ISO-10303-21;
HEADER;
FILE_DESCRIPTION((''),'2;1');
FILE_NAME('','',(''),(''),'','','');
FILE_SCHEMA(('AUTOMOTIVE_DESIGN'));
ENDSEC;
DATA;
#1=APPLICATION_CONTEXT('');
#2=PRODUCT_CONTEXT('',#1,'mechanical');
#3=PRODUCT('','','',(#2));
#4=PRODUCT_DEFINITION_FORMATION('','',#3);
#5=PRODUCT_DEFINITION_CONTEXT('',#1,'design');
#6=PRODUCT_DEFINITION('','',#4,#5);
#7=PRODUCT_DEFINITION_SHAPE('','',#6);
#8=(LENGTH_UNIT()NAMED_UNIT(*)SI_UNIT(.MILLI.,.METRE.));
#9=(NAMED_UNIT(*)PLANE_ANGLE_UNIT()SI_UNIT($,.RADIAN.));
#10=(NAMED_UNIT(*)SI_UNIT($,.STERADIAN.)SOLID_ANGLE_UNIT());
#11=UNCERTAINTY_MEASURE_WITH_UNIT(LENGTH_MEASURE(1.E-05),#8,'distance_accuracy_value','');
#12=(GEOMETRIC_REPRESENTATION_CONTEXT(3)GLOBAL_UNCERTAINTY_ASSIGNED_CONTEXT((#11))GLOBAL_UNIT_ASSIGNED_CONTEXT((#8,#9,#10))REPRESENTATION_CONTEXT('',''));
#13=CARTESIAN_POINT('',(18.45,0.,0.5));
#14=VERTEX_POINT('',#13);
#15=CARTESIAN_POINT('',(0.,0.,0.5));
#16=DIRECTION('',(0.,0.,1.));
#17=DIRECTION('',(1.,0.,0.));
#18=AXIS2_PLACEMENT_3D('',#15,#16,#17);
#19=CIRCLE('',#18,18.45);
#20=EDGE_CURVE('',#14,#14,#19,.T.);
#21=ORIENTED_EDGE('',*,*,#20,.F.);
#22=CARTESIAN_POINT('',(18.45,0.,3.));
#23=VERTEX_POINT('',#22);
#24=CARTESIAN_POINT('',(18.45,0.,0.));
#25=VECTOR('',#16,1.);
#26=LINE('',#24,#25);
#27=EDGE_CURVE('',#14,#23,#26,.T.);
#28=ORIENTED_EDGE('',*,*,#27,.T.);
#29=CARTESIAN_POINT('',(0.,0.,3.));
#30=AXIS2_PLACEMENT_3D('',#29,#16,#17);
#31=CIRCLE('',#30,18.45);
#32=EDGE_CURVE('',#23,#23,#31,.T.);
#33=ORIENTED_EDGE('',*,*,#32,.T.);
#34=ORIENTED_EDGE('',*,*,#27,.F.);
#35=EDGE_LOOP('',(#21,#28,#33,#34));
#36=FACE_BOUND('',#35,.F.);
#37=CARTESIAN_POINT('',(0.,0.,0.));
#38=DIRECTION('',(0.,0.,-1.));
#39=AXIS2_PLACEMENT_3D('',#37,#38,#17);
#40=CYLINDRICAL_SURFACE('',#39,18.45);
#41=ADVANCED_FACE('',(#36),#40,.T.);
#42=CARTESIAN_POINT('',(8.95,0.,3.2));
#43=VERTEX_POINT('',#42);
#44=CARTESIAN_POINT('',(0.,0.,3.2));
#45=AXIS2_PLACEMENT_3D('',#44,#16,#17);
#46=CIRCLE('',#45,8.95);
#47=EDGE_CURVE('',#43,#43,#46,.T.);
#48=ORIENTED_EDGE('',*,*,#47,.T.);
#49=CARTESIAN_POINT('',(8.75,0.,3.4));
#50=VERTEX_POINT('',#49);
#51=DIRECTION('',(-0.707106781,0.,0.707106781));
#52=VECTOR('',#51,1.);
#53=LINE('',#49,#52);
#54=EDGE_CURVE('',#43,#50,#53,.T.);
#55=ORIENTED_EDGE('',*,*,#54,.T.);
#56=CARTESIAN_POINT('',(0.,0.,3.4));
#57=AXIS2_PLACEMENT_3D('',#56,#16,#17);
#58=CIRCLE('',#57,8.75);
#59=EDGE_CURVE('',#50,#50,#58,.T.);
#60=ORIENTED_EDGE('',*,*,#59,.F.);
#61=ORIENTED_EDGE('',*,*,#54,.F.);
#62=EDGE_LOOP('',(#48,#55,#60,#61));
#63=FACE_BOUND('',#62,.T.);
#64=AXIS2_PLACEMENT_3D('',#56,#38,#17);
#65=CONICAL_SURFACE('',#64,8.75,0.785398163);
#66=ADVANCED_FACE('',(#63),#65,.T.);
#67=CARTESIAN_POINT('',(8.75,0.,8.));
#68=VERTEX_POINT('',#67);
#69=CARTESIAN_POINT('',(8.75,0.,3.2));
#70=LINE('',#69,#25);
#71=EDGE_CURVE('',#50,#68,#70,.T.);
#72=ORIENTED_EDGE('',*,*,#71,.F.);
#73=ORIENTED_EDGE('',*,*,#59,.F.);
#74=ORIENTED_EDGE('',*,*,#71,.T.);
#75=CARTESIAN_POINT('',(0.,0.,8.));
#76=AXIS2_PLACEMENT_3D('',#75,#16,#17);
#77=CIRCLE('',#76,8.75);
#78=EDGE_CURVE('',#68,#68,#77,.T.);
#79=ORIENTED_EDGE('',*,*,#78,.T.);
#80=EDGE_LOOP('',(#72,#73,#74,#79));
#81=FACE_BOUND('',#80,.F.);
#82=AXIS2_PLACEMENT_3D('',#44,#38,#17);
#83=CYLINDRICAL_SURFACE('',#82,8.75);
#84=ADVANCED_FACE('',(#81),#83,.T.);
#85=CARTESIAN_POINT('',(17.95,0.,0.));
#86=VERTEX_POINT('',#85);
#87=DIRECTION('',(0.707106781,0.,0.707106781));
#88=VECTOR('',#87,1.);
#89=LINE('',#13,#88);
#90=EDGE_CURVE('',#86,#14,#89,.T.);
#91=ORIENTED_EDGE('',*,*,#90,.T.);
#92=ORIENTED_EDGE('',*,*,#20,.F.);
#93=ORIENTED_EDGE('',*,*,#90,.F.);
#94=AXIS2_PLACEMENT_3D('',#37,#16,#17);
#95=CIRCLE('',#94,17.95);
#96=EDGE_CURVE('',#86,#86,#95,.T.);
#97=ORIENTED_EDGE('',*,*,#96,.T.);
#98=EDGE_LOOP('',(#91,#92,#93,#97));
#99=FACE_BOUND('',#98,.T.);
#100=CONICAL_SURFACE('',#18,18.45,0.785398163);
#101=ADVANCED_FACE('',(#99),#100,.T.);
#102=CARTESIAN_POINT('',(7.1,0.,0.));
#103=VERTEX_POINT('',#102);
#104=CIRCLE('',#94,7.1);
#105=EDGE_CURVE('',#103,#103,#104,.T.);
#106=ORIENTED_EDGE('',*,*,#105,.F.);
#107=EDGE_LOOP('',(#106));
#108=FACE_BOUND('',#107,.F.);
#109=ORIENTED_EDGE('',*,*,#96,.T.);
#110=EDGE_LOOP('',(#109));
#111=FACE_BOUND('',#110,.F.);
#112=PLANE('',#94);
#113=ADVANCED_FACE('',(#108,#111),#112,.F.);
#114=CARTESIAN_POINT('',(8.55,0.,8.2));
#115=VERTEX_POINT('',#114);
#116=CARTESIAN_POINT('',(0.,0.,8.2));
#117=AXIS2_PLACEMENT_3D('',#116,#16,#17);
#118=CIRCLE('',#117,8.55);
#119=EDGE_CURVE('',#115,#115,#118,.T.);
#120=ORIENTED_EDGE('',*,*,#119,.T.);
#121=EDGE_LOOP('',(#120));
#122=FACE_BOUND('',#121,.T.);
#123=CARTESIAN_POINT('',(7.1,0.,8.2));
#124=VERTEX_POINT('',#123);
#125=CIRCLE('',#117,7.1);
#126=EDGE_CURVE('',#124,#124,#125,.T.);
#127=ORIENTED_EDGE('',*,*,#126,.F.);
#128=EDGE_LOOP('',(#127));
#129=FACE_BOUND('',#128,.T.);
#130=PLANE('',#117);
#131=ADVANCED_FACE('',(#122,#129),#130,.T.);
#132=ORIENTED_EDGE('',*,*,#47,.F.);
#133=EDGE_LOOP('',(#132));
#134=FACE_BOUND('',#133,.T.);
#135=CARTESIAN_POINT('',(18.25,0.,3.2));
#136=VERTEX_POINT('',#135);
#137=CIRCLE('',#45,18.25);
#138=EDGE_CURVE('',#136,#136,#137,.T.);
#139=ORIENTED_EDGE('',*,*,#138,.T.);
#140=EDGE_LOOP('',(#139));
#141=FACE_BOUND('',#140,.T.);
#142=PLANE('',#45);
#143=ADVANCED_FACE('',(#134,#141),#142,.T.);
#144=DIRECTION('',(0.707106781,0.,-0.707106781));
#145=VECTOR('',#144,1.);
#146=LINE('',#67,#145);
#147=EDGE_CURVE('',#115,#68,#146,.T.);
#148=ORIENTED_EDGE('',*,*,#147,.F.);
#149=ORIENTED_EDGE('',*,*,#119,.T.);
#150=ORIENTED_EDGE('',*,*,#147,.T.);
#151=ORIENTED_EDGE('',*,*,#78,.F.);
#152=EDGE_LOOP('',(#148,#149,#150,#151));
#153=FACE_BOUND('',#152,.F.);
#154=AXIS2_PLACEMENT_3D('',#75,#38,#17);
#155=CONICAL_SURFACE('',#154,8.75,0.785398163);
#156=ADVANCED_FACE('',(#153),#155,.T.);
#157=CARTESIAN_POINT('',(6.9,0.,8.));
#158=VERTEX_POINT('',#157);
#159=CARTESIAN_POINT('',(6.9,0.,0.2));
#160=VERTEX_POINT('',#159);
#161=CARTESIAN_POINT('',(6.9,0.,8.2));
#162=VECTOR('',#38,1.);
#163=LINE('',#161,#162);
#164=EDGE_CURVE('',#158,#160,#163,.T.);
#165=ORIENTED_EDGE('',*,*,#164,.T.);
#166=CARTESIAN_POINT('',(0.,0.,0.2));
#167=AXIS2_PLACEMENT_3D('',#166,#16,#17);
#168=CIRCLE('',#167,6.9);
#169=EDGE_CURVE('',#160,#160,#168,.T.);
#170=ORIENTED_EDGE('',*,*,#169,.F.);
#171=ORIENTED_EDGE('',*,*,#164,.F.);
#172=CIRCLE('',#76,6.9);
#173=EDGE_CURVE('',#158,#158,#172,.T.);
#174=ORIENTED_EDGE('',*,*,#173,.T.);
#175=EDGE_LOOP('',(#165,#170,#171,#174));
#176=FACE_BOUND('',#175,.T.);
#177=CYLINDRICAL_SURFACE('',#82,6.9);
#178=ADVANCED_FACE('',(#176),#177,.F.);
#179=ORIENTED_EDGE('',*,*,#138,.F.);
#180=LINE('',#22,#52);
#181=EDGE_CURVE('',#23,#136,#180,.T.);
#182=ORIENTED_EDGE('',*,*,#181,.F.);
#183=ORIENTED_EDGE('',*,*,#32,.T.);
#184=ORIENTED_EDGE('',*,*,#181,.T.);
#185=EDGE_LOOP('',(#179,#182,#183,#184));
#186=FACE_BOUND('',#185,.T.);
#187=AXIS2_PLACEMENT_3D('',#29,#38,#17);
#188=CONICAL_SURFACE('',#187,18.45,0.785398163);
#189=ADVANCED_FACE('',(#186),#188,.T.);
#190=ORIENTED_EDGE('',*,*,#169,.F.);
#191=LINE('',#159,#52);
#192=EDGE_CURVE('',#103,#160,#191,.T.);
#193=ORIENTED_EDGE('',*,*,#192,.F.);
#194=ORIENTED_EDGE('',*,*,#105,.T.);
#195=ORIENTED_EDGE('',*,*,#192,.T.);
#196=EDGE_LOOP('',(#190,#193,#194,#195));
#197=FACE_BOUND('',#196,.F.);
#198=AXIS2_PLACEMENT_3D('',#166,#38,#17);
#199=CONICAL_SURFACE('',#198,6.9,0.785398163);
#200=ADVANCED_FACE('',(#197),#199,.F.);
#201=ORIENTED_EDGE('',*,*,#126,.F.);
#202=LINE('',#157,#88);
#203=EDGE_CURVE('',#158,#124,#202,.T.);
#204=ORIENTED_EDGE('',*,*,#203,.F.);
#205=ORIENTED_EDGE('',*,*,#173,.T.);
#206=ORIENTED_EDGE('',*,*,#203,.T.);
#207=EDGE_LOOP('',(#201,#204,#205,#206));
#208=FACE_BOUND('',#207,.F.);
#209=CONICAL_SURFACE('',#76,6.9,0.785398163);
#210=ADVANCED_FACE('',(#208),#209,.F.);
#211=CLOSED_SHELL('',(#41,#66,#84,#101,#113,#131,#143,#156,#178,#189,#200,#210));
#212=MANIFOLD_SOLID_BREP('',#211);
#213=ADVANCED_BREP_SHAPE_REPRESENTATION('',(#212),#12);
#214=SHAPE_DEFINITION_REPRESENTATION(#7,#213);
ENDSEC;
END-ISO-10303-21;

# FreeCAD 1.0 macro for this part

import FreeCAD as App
import Part
import Sketcher

V = App.Vector


def edges_at(feature, points):
    """Names of the edges that pass closest to the given points."""
    edges = feature.Shape.Edges
    near = lambda p: min(range(len(edges)), key=lambda i: edges[i].distToShape(Part.Vertex(*p))[0])
    return sorted({f"Edge{near(p) + 1}" for p in points})

doc = App.newDocument("Part")
body = doc.addObject("PartDesign::Body", "Body")

# Sketch on XY plane
sketch1 = body.newObject("Sketcher::SketchObject", "Sketch")
sketch1.AttachmentSupport = (doc.getObject("XY_Plane"), [""])
sketch1.MapMode = "FlatFace"
sketch1.addGeometry([
    Part.Circle(V(0, 0, 0), V(0, 0, 1), 18),
    Part.Circle(V(0, 0, 0), V(0, 0, 1), 7),
], False)
sketch1.addConstraint([
    Sketcher.Constraint("Coincident", 0, 3, -1, 1),
    Sketcher.Constraint("Coincident", 1, 3, -1, 1),
    Sketcher.Constraint("Diameter", 0, 36.9),
    Sketcher.Constraint("Diameter", 1, 13.8),
])
pad1 = body.newObject("PartDesign::Pad", "Pad")
pad1.Profile = sketch1
pad1.Length = 3.2

# Sketch on XY plane
sketch2 = body.newObject("Sketcher::SketchObject", "Sketch001")
sketch2.AttachmentSupport = (doc.getObject("XY_Plane"), [""])
sketch2.MapMode = "FlatFace"
sketch2.AttachmentOffset = App.Placement(V(0, 0, 3.2), App.Rotation())
sketch2.addGeometry([
    Part.Circle(V(0, 0, 0), V(0, 0, 1), 9),
    Part.Circle(V(0, 0, 0), V(0, 0, 1), 7),
], False)
sketch2.addConstraint([
    Sketcher.Constraint("Coincident", 0, 3, -1, 1),
    Sketcher.Constraint("Coincident", 1, 3, -1, 1),
    Sketcher.Constraint("Diameter", 0, 17.5),
    Sketcher.Constraint("Diameter", 1, 13.8),
])
pad2 = body.newObject("PartDesign::Pad", "Pad001")
pad2.Profile = sketch2
pad2.Length = 5
doc.recompute()

chamfer = body.newObject("PartDesign::Chamfer", "Chamfer")
chamfer.Base = (pad2, edges_at(pad2, [(-18.45, 0, 0)]))
chamfer.Size = 0.5
doc.recompute()

chamfer2 = body.newObject("PartDesign::Chamfer", "Chamfer001")
chamfer2.Base = (chamfer, edges_at(chamfer, [
    (-6.9, 0, 0),
    (-6.9, 0, 8.2),
    (-8.75, 0, 8.2),
    (-8.75, 0, 3.2),
    (-18.45, 0, 3.2),
]))
chamfer2.Size = 0.2

doc.recompute()
